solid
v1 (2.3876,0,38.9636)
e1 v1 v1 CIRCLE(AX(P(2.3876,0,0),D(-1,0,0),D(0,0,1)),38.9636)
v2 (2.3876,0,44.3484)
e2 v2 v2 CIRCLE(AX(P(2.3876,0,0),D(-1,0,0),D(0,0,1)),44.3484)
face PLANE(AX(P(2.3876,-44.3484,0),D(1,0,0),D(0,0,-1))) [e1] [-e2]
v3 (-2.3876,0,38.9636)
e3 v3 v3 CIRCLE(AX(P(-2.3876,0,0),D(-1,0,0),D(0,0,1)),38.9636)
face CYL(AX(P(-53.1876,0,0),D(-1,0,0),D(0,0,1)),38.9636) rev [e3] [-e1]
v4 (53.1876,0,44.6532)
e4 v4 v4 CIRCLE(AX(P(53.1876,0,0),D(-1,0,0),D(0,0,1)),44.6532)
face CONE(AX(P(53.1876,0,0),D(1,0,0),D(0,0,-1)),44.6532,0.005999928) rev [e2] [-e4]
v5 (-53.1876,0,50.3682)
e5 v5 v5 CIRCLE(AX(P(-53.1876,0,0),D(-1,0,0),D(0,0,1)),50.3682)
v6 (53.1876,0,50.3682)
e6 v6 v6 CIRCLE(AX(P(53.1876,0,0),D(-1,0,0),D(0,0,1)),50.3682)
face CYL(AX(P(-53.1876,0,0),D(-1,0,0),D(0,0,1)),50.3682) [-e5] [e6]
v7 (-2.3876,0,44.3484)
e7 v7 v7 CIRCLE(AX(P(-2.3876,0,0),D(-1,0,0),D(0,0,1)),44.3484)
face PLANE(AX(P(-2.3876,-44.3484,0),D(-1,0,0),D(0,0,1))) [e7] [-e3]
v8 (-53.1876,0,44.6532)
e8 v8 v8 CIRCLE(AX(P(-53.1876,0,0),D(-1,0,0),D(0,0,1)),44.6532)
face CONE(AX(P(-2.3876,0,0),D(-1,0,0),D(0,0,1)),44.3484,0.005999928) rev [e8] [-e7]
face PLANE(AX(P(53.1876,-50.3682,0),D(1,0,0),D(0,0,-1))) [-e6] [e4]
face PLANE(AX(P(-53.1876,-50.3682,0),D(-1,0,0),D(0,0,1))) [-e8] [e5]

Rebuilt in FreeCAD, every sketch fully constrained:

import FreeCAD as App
import Part
import Sketcher
Q = App.Units.Quantity

doc = App.newDocument("Part")
body = doc.addObject("PartDesign::Body", "Body")

# Sketch on XY plane
sketch1 = body.newObject("Sketcher::SketchObject", "Sketch")
sketch1.AttachmentSupport = (doc.getObject("XY_Plane"), [""])
sketch1.MapMode = "FlatFace"
sketch1.addGeometry(Part.LineSegment(App.Vector(2.3876, -38.9636, 0), App.Vector(-2.3876, -38.9636, 0)), False)
sketch1.addGeometry(Part.LineSegment(App.Vector(-2.3876, -38.9636, 0), App.Vector(-2.3876, -44.3484, 0)), False)
sketch1.addGeometry(Part.LineSegment(App.Vector(-2.3876, -44.3484, 0), App.Vector(-53.1876, -44.6532, 0)), False)
sketch1.addGeometry(Part.LineSegment(App.Vector(-53.1876, -44.6532, 0), App.Vector(-53.1876, -50.3682, 0)), False)
sketch1.addGeometry(Part.LineSegment(App.Vector(-53.1876, -50.3682, 0), App.Vector(53.1876, -50.3682, 0)), False)
sketch1.addGeometry(Part.LineSegment(App.Vector(53.1876, -50.3682, 0), App.Vector(53.1876, -44.6532, 0)), False)
sketch1.addGeometry(Part.LineSegment(App.Vector(53.1876, -44.6532, 0), App.Vector(2.3876, -44.3484, 0)), False)
sketch1.addGeometry(Part.LineSegment(App.Vector(2.3876, -44.3484, 0), App.Vector(2.3876, -38.9636, 0)), False)
sketch1.addConstraint(Sketcher.Constraint("Coincident", 0, 2, 1, 1))
sketch1.addConstraint(Sketcher.Constraint("Coincident", 1, 2, 2, 1))
sketch1.addConstraint(Sketcher.Constraint("Coincident", 2, 2, 3, 1))
sketch1.addConstraint(Sketcher.Constraint("Coincident", 3, 2, 4, 1))
sketch1.addConstraint(Sketcher.Constraint("Coincident", 4, 2, 5, 1))
sketch1.addConstraint(Sketcher.Constraint("Coincident", 5, 2, 6, 1))
sketch1.addConstraint(Sketcher.Constraint("Coincident", 6, 2, 7, 1))
sketch1.addConstraint(Sketcher.Constraint("Coincident", 7, 2, 0, 1))
sketch1.addConstraint(Sketcher.Constraint("Horizontal", 0))
sketch1.addConstraint(Sketcher.Constraint("Vertical", 1))
sketch1.addConstraint(Sketcher.Constraint("Vertical", 3))
sketch1.addConstraint(Sketcher.Constraint("Horizontal", 4))
sketch1.addConstraint(Sketcher.Constraint("Vertical", 5))
sketch1.addConstraint(Sketcher.Constraint("Vertical", 7))
sketch1.addConstraint(Sketcher.Constraint("Symmetric", 2, 2, 5, 2, -2))
sketch1.addConstraint(Sketcher.Constraint("Symmetric", 1, 2, 6, 2, -2))
sketch1.addConstraint(Sketcher.Constraint("DistanceX", 2, 2, 1, 2, Q("2 in")))
sketch1.addConstraint(Sketcher.Constraint("DistanceX", 0, 2, 0, 1, Q("0.188 in")))
sketch1.addConstraint(Sketcher.Constraint("DistanceY", 1, 2, 1, 1, Q("0.212 in")))
sketch1.addConstraint(Sketcher.Constraint("DistanceY", 3, 2, 3, 1, Q("0.225 in")))
sketch1.addConstraint(Sketcher.Constraint("DistanceY", 0, 2, -1, 1, Q("1.534 in")))
sketch1.addConstraint(Sketcher.Constraint("DistanceY", 2, 2, -1, 1, Q("1.758 in")))
revolution = body.newObject("PartDesign::Revolution", "Revolution")
revolution.Profile = sketch1
revolution.ReferenceAxis = (sketch1, ["H_Axis"])
revolution.Angle = 360

doc.recompute()
